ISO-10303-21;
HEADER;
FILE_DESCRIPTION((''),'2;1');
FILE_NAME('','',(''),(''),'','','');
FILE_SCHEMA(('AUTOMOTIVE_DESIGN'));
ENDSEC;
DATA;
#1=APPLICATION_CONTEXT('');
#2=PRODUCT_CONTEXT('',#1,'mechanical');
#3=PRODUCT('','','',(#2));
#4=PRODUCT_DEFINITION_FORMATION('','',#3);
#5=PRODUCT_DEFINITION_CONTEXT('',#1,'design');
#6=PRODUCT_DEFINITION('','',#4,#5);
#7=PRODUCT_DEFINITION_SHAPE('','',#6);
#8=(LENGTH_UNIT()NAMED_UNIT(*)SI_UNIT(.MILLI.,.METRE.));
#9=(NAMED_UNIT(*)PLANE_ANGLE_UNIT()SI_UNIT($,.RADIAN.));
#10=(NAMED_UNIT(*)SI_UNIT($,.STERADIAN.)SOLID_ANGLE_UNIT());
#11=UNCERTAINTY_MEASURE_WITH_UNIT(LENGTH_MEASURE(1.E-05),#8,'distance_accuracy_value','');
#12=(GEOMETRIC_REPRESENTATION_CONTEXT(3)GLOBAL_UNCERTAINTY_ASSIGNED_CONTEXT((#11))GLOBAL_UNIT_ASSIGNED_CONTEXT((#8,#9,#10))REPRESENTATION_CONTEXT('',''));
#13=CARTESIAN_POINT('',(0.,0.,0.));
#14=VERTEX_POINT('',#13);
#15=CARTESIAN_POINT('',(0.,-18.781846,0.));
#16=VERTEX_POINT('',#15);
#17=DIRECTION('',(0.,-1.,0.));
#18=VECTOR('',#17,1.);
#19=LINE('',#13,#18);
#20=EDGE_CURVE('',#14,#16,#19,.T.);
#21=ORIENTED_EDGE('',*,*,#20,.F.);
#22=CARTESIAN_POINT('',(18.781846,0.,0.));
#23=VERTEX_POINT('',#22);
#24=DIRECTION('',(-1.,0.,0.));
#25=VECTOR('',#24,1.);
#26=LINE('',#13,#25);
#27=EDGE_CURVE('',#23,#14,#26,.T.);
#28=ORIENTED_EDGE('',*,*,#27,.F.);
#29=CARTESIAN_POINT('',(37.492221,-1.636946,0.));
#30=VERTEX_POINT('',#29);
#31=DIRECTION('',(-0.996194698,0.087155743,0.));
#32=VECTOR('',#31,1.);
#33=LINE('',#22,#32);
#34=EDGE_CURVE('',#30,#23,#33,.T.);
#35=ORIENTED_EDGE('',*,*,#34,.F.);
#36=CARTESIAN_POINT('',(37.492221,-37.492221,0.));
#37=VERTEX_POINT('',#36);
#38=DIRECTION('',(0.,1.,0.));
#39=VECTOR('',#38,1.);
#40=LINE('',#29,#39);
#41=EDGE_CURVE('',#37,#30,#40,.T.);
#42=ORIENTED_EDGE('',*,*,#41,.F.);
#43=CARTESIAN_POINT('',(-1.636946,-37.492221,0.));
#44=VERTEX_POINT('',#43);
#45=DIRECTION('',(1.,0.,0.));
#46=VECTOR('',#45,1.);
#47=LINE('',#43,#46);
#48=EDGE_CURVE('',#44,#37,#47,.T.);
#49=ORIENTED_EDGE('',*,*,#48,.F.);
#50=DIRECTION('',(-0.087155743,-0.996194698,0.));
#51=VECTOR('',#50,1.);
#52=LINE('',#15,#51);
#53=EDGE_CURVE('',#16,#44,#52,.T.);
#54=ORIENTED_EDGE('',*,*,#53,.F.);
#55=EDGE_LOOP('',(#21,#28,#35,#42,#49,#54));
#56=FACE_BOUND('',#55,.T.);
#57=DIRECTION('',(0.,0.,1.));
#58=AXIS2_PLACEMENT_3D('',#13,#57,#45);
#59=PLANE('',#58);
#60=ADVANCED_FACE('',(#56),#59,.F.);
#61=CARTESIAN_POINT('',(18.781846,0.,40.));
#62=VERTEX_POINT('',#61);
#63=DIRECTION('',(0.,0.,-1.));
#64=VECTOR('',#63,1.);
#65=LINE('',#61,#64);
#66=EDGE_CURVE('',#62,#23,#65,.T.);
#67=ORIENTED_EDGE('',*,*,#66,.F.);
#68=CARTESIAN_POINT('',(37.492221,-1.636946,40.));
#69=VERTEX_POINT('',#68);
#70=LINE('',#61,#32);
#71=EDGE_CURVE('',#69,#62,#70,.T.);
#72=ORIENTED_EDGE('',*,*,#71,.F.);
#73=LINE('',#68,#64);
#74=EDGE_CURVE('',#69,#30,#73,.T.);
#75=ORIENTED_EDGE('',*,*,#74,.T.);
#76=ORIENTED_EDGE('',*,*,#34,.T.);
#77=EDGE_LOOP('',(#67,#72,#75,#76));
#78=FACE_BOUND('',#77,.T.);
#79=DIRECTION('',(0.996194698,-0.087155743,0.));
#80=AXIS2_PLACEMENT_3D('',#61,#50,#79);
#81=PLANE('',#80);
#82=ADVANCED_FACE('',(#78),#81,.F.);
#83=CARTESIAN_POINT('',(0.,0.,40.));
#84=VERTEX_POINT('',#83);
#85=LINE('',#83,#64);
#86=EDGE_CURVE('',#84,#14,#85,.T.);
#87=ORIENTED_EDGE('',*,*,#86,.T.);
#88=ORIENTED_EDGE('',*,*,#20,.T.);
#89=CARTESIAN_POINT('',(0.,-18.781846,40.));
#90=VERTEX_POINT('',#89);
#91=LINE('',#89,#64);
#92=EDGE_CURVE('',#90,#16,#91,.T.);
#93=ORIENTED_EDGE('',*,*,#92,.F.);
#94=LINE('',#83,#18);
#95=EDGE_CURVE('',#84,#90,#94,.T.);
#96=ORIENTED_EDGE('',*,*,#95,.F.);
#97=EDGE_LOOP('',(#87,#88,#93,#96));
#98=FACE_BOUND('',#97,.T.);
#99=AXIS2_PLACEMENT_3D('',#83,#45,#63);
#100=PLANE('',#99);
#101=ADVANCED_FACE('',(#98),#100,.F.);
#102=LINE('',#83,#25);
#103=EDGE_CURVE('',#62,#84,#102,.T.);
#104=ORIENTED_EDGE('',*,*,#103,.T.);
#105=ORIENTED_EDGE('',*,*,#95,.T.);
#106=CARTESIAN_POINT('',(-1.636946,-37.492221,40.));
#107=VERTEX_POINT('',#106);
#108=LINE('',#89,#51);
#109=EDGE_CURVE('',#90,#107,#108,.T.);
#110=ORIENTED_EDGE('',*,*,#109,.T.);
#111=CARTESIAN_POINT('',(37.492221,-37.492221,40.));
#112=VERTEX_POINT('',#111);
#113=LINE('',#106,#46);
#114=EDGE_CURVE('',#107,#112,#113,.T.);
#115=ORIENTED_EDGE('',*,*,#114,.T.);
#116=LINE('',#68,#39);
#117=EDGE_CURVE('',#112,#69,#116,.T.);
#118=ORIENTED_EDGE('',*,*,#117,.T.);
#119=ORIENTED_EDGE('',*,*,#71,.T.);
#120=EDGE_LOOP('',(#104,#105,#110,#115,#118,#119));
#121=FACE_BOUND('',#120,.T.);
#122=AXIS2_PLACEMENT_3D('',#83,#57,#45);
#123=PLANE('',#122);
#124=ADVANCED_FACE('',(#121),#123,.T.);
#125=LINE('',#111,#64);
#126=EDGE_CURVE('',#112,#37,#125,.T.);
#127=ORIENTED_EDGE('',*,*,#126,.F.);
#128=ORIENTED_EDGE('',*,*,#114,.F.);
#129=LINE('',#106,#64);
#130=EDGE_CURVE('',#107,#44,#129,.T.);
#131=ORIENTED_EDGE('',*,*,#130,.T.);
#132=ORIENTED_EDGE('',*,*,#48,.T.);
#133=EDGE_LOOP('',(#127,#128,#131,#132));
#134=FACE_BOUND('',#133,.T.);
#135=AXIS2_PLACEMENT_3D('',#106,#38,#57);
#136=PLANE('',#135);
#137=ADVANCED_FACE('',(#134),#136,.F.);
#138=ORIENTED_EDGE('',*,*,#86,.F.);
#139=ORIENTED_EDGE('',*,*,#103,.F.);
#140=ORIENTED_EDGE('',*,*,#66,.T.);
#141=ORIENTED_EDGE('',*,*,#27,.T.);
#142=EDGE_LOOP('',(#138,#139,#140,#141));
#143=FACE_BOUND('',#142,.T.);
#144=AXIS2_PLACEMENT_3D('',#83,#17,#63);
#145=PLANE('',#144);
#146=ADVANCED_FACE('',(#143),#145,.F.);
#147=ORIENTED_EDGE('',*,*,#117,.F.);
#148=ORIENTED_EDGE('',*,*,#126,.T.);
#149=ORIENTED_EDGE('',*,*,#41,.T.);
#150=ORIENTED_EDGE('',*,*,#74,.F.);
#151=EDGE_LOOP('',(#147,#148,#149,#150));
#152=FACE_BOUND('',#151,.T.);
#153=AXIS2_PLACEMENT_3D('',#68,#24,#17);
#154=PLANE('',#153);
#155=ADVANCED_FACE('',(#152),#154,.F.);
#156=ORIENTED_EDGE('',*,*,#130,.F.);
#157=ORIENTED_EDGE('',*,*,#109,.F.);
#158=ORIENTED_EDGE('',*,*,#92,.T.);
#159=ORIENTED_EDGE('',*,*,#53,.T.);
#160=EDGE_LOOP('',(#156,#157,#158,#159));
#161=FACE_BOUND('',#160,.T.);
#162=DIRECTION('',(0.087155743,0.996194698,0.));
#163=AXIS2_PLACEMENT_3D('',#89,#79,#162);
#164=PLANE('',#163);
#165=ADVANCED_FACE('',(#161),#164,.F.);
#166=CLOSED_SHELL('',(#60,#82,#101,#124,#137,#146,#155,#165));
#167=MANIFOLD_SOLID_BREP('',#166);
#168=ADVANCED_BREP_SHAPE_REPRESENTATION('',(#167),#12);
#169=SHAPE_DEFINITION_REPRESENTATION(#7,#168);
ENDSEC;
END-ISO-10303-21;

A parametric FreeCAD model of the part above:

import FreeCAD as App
import Part
import Sketcher
Q = App.Units.Quantity

doc = App.newDocument("Part")
body = doc.addObject("PartDesign::Body", "Body")

# Sketch on XY plane
sketch1 = body.newObject("Sketcher::SketchObject", "Sketch")
sketch1.AttachmentSupport = (doc.getObject("XY_Plane"), [""])
sketch1.MapMode = "FlatFace"
sketch1.addGeometry(Part.LineSegment(App.Vector(0, -19, 0), App.Vector(-2, -37, 0)), False)
sketch1.addGeometry(Part.LineSegment(App.Vector(-2, -37, 0), App.Vector(37, -37, 0)), False)
sketch1.addGeometry(Part.LineSegment(App.Vector(37, -37, 0), App.Vector(37, -2, 0)), False)
sketch1.addGeometry(Part.LineSegment(App.Vector(37, -2, 0), App.Vector(19, 0, 0)), False)
sketch1.addGeometry(Part.LineSegment(App.Vector(19, 0, 0), App.Vector(0, 0, 0)), False)
sketch1.addGeometry(Part.LineSegment(App.Vector(0, 0, 0), App.Vector(0, -19, 0)), False)
sketch1.addConstraint(Sketcher.Constraint("Coincident", 0, 2, 1, 1))
sketch1.addConstraint(Sketcher.Constraint("Coincident", 1, 2, 2, 1))
sketch1.addConstraint(Sketcher.Constraint("Coincident", 2, 2, 3, 1))
sketch1.addConstraint(Sketcher.Constraint("Coincident", 3, 2, 4, 1))
sketch1.addConstraint(Sketcher.Constraint("Coincident", 4, 2, 5, 1))
sketch1.addConstraint(Sketcher.Constraint("Coincident", 5, 2, 0, 1))
sketch1.addConstraint(Sketcher.Constraint("Horizontal", 1))
sketch1.addConstraint(Sketcher.Constraint("Vertical", 2))
sketch1.addConstraint(Sketcher.Constraint("Horizontal", 4))
sketch1.addConstraint(Sketcher.Constraint("Vertical", 5))
sketch1.addConstraint(Sketcher.Constraint("Coincident", 4, 2, -1, 1))
sketch1.addConstraint(Sketcher.Constraint("Perpendicular", 0, 3))
sketch1.addConstraint(Sketcher.Constraint("Equal", 4, 5))
sketch1.addConstraint(Sketcher.Constraint("Equal", 0, 3))
sketch1.addConstraint(Sketcher.Constraint("Angle", 0, Q("-95 deg")))
sketch1.addConstraint(Sketcher.Constraint("DistanceY", 5, 2, 2, 2, Q("17.1449 mm")))
sketch1.addConstraint(Sketcher.Constraint("DistanceX", 1, 1, 1, 2, Q("39.129167 mm")))
pad1 = body.newObject("PartDesign::Pad", "Pad")
pad1.Profile = sketch1
pad1.Length = 40

doc.recompute()
